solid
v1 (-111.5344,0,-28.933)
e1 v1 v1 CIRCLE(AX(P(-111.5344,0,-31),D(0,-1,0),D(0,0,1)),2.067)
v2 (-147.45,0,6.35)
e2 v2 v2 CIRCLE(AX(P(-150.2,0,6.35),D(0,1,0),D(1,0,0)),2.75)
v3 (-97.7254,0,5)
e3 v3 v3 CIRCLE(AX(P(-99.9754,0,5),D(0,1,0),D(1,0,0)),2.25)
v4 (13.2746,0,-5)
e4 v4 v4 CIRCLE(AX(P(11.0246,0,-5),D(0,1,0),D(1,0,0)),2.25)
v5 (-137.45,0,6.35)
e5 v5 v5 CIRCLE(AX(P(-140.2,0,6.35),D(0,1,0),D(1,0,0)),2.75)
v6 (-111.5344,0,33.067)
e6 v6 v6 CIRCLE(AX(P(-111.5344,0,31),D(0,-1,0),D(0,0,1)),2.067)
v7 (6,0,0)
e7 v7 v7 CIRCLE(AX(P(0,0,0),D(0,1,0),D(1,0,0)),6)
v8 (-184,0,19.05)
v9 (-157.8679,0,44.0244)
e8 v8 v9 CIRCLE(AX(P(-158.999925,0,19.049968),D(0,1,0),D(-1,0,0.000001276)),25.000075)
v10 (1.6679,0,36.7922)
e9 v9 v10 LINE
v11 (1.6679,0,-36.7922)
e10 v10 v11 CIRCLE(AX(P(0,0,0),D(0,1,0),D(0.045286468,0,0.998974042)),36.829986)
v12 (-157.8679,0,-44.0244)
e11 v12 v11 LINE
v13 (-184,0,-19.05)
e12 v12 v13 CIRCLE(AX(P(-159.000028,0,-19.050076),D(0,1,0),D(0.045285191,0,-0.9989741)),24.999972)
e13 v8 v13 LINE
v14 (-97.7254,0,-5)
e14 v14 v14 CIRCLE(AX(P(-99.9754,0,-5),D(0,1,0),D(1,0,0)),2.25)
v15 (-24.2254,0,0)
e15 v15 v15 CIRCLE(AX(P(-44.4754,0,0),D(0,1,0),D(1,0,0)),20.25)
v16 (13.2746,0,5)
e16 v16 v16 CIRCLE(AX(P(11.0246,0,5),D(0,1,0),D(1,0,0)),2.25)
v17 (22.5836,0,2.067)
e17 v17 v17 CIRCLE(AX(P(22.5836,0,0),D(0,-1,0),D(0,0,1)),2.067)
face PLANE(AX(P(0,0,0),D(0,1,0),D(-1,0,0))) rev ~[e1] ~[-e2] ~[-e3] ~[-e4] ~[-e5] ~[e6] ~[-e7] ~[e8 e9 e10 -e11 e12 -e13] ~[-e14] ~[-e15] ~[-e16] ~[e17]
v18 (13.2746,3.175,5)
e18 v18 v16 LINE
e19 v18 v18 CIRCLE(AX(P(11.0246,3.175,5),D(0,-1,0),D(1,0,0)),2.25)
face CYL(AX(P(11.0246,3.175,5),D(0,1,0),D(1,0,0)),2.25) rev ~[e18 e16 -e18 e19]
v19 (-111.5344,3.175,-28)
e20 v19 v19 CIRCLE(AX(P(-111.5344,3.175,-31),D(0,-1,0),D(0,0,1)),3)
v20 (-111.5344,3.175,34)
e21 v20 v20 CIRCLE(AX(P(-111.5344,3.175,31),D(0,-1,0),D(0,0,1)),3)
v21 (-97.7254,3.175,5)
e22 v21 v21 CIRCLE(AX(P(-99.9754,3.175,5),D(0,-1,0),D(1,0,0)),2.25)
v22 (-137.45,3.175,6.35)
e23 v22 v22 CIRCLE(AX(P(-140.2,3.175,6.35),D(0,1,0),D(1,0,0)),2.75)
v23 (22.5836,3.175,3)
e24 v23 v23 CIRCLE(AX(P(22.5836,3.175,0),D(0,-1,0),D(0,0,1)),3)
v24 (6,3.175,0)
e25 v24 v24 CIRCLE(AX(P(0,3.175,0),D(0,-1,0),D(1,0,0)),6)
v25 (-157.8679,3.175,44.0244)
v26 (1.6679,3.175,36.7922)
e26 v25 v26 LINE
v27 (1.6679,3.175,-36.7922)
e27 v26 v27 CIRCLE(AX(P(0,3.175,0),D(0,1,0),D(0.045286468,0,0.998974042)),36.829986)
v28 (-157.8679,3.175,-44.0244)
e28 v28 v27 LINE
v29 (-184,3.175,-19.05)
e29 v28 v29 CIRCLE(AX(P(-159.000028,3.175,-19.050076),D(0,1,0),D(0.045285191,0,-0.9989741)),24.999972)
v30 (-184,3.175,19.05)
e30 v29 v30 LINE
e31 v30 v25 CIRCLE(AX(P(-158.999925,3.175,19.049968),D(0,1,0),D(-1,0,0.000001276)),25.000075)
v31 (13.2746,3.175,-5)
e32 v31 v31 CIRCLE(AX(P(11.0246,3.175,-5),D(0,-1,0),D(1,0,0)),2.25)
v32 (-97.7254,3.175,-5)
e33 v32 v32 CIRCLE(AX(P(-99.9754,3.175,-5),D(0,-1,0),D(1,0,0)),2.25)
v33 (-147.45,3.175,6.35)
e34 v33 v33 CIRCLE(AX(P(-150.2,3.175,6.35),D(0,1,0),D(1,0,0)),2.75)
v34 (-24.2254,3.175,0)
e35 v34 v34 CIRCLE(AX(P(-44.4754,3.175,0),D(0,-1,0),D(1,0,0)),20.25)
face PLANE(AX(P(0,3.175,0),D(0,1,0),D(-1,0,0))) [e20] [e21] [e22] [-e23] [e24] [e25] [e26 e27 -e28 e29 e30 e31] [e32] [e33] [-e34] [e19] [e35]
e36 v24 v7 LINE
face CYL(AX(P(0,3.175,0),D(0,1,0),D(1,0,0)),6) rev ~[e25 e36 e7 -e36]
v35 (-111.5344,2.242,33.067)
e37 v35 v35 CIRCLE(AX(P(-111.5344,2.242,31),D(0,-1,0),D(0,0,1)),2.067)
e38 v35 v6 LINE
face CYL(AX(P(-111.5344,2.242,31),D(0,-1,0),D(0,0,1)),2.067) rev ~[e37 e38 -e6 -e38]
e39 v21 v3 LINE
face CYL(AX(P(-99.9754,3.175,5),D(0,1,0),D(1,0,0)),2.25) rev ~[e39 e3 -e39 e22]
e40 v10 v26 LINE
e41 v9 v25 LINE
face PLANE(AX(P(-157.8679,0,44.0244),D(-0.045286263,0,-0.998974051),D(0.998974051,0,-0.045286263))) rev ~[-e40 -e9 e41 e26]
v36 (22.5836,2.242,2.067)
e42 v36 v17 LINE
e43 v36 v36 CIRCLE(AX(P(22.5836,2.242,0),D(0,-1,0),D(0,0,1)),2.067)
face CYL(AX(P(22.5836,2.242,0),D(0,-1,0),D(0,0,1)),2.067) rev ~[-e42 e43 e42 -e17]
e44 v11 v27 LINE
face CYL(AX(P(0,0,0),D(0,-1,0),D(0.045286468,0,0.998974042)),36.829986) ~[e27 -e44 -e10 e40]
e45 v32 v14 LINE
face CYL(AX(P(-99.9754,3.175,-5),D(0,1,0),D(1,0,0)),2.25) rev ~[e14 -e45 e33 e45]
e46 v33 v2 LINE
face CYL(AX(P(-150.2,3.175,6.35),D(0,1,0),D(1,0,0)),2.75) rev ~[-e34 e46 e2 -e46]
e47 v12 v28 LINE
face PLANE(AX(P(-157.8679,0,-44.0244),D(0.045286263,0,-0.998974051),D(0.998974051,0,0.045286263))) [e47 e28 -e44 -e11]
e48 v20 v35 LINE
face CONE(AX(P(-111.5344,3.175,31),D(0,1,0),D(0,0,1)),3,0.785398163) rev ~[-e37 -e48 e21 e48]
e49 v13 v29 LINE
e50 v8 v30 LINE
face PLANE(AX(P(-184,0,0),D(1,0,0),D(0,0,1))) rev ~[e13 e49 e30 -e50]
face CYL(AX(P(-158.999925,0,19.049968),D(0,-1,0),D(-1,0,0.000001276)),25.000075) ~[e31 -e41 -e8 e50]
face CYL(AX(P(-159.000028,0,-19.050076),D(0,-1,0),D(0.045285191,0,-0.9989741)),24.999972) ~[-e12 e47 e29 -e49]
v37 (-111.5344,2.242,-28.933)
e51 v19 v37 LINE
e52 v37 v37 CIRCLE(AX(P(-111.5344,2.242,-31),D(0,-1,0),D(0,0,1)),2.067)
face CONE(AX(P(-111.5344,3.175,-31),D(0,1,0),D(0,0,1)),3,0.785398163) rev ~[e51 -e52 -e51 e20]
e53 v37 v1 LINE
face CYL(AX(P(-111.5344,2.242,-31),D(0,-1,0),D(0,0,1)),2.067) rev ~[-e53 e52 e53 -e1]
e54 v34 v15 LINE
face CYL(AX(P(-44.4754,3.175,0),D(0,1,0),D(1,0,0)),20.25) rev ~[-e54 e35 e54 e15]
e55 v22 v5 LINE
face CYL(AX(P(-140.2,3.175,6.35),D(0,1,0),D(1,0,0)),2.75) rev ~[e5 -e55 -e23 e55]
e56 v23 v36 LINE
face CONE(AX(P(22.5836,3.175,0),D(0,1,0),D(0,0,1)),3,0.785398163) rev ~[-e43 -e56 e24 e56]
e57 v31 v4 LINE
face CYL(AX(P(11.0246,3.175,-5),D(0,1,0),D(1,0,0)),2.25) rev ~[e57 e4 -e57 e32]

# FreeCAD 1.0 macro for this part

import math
import FreeCAD as App
import Part
import Sketcher

V = App.Vector
Q = App.Units.Quantity

doc = App.newDocument("Part")
params = doc.addObject("Spreadsheet::Sheet", "Params")
for row, (alias, value) in enumerate([
    ("sketch1_radius", "25 mm"),
    ("sketch1_radius2", "36.83 mm"),
    ("sketch1_height", "38.1 mm"),
    ("pad1_length", "3.175 mm"),
    ("sketch2_diameter", "12 mm"),
    ("sketch2_diameter2", "4.5 mm"),
    ("sketch2_diameter3", "40.5 mm"),
    ("sketch3_diameter", "5.5 mm"),
    ("hole_diameter", "4.134 mm"),
    ("hole_csink_diameter", "6 mm"),
], start=1):
    params.set(f"A{row}", alias)
    params.set(f"B{row}", "=" + value)
    params.setAlias(f"B{row}", alias)

body = doc.addObject("PartDesign::Body", "Body")

sketch1 = body.newObject("Sketcher::SketchObject", "Sketch")
sketch1.AttachmentSupport = (doc.getObject("XZ_Plane"), [""])
sketch1.MapMode = "FlatFace"
sketch1.addGeometry([
    Part.LineSegment(V(-158, 44, 0), V(2, 37, 0)),
    Part.ArcOfCircle(Part.Circle(V(0, 0, 0), V(0, 0, 1), 37), math.radians(-87), math.radians(87)),
    Part.LineSegment(V(2, -37, 0), V(-158, -44, 0)),
    Part.ArcOfCircle(Part.Circle(V(-159, -19, 0), V(0, 0, 1), 25), math.radians(180), math.radians(273)),
    Part.LineSegment(V(-184, -19, 0), V(-184, 19, 0)),
    Part.ArcOfCircle(Part.Circle(V(-159, 19, 0), V(0, 0, 1), 25), math.radians(87), math.radians(180)),
], False)
sketch1.addConstraint([
    Sketcher.Constraint("Tangent", 0, 2, 1, 2),
    Sketcher.Constraint("Tangent", 1, 1, 2, 1),
    Sketcher.Constraint("Tangent", 2, 2, 3, 2),
    Sketcher.Constraint("Tangent", 3, 1, 4, 1),
    Sketcher.Constraint("Tangent", 4, 2, 5, 2),
    Sketcher.Constraint("Tangent", 5, 1, 0, 1),
    Sketcher.Constraint("Vertical", 4),
    Sketcher.Constraint("Coincident", 1, 3, -1, 1),
    Sketcher.Constraint("Equal", 3, 5),
    Sketcher.Constraint("Vertical", 0, 2, 1, 1),
    Sketcher.Constraint("Radius", 3, Q("25 mm")),
    Sketcher.Constraint("Radius", 1, Q("36.83 mm")),
    Sketcher.Constraint("DistanceY", 4, 1, 4, 2, Q("38.1 mm")),
    Sketcher.Constraint("DistanceX", 3, 3, -1, 1, Q("159 mm")),
])
sketch1.setExpression("Constraints[10]", "Params.sketch1_radius")
sketch1.setExpression("Constraints[11]", "Params.sketch1_radius2")
sketch1.setExpression("Constraints[12]", "Params.sketch1_height")
pad1 = body.newObject("PartDesign::Pad", "Pad")
pad1.Profile = sketch1
pad1.setExpression("Length", "Params.pad1_length")
pad1.Reversed = True

sketch2 = body.newObject("Sketcher::SketchObject", "Sketch001")
sketch2.AttachmentSupport = (doc.getObject("XZ_Plane"), [""])
sketch2.MapMode = "FlatFace"
sketch2.AttachmentOffset = App.Placement(V(0, 0, -3.175), App.Rotation())
sketch2.addGeometry([
    Part.Circle(V(0, 0, 0), V(0, 0, 1), 6),
    Part.Circle(V(-100, 5, 0), V(0, 0, 1), 2.2),
    Part.Circle(V(-100, -5, 0), V(0, 0, 1), 2.2),
    Part.Circle(V(11, -5, 0), V(0, 0, 1), 2.2),
    Part.Circle(V(11, 5, 0), V(0, 0, 1), 2.2),
    Part.Circle(V(-44.5, 0, 0), V(0, 0, 1), 20.2),
], False)
sketch2.addConstraint([
    Sketcher.Constraint("Coincident", 0, 3, -1, 1),
    Sketcher.Constraint("Equal", 1, 2),
    Sketcher.Constraint("Equal", 2, 3),
    Sketcher.Constraint("Equal", 3, 4),
    Sketcher.Constraint("Symmetric", 1, 3, 2, 3, -1),
    Sketcher.Constraint("Symmetric", 3, 3, 4, 3, -1),
    Sketcher.Constraint("PointOnObject", 5, 3, -1),
    Sketcher.Constraint("Horizontal", 2, 3, 3, 3),
    Sketcher.Constraint("Diameter", 0, Q("12 mm")),
    Sketcher.Constraint("Diameter", 1, Q("4.5 mm")),
    Sketcher.Constraint("Diameter", 5, Q("40.5 mm")),
    Sketcher.Constraint("DistanceY", -1, 1, 1, 3, Q("5 mm")),
    Sketcher.Constraint("DistanceX", 2, 3, 3, 3, Q("111 mm")),
    Sketcher.Constraint("DistanceX", 5, 3, -1, 1, Q("44.4754 mm")),
    Sketcher.Constraint("DistanceX", 1, 3, 5, 3, Q("55.5 mm")),
])
sketch2.setExpression("Constraints[8]", "Params.sketch2_diameter")
sketch2.setExpression("Constraints[9]", "Params.sketch2_diameter2")
sketch2.setExpression("Constraints[10]", "Params.sketch2_diameter3")
pocket1 = body.newObject("PartDesign::Pocket", "Pocket")
pocket1.Profile = sketch2
pocket1.Type = "ThroughAll"
pocket1.Reversed = True

sketch3 = body.newObject("Sketcher::SketchObject", "Sketch002")
sketch3.AttachmentSupport = (doc.getObject("XZ_Plane"), [""])
sketch3.MapMode = "FlatFace"
sketch3.AttachmentOffset = App.Placement(V(0, 0, -3.175), App.Rotation())
sketch3.addGeometry([
    Part.Circle(V(-140.2, 6.3, 0), V(0, 0, 1), 2.8),
    Part.Circle(V(-150.2, 6.3, 0), V(0, 0, 1), 2.8),
], False)
sketch3.addConstraint([
    Sketcher.Constraint("Equal", 0, 1),
    Sketcher.Constraint("Horizontal", 0, 3, 1, 3),
    Sketcher.Constraint("Diameter", 0, Q("5.5 mm")),
    Sketcher.Constraint("DistanceX", 1, 3, 0, 3, Q("10 mm")),
    Sketcher.Constraint("DistanceX", 0, 3, -1, 1, Q("140.2 mm")),
    Sketcher.Constraint("DistanceY", -1, 1, 0, 3, Q("6.35 mm")),
])
sketch3.setExpression("Constraints[2]", "Params.sketch3_diameter")
pocket2 = body.newObject("PartDesign::Pocket", "Pocket001")
pocket2.Profile = sketch3
pocket2.Type = "ThroughAll"
pocket2.Reversed = True

sketch4 = body.newObject("Sketcher::SketchObject", "Sketch003")
sketch4.AttachmentSupport = (doc.getObject("XZ_Plane"), [""])
sketch4.MapMode = "FlatFace"
sketch4.AttachmentOffset = App.Placement(V(0, 0, -3.175), App.Rotation())
sketch4.addGeometry([
    Part.Circle(V(-111.5, 31, 0), V(0, 0, 1), 2.1),
    Part.Circle(V(-111.5, -31, 0), V(0, 0, 1), 2.1),
    Part.Circle(V(22.6, 0, 0), V(0, 0, 1), 2.1),
], False)
sketch4.addConstraint([
    Sketcher.Constraint("Equal", 0, 1),
    Sketcher.Constraint("Equal", 1, 2),
    Sketcher.Constraint("Symmetric", 0, 3, 1, 3, -1),
    Sketcher.Constraint("PointOnObject", 2, 3, -1),
    Sketcher.Constraint("Diameter", 0, Q("4.134 mm")),
    Sketcher.Constraint("DistanceY", -1, 1, 0, 3, Q("31 mm")),
    Sketcher.Constraint("DistanceX", 0, 3, 2, 3, Q("134.118 mm")),
    Sketcher.Constraint("DistanceX", 0, 3, -1, 1, Q("111.5344 mm")),
])
doc.recompute()
hole = body.newObject("PartDesign::Hole", "Hole")
hole.Profile = sketch4
hole.ThreadType = "None"
hole.setExpression("Diameter", "Params.hole_diameter")
hole.DepthType = "ThroughAll"
hole.HoleCutType = "Countersink"
hole.setExpression("HoleCutDiameter", "Params.hole_csink_diameter")
hole.HoleCutCountersinkAngle = 90
hole.Reversed = True

doc.recompute()
